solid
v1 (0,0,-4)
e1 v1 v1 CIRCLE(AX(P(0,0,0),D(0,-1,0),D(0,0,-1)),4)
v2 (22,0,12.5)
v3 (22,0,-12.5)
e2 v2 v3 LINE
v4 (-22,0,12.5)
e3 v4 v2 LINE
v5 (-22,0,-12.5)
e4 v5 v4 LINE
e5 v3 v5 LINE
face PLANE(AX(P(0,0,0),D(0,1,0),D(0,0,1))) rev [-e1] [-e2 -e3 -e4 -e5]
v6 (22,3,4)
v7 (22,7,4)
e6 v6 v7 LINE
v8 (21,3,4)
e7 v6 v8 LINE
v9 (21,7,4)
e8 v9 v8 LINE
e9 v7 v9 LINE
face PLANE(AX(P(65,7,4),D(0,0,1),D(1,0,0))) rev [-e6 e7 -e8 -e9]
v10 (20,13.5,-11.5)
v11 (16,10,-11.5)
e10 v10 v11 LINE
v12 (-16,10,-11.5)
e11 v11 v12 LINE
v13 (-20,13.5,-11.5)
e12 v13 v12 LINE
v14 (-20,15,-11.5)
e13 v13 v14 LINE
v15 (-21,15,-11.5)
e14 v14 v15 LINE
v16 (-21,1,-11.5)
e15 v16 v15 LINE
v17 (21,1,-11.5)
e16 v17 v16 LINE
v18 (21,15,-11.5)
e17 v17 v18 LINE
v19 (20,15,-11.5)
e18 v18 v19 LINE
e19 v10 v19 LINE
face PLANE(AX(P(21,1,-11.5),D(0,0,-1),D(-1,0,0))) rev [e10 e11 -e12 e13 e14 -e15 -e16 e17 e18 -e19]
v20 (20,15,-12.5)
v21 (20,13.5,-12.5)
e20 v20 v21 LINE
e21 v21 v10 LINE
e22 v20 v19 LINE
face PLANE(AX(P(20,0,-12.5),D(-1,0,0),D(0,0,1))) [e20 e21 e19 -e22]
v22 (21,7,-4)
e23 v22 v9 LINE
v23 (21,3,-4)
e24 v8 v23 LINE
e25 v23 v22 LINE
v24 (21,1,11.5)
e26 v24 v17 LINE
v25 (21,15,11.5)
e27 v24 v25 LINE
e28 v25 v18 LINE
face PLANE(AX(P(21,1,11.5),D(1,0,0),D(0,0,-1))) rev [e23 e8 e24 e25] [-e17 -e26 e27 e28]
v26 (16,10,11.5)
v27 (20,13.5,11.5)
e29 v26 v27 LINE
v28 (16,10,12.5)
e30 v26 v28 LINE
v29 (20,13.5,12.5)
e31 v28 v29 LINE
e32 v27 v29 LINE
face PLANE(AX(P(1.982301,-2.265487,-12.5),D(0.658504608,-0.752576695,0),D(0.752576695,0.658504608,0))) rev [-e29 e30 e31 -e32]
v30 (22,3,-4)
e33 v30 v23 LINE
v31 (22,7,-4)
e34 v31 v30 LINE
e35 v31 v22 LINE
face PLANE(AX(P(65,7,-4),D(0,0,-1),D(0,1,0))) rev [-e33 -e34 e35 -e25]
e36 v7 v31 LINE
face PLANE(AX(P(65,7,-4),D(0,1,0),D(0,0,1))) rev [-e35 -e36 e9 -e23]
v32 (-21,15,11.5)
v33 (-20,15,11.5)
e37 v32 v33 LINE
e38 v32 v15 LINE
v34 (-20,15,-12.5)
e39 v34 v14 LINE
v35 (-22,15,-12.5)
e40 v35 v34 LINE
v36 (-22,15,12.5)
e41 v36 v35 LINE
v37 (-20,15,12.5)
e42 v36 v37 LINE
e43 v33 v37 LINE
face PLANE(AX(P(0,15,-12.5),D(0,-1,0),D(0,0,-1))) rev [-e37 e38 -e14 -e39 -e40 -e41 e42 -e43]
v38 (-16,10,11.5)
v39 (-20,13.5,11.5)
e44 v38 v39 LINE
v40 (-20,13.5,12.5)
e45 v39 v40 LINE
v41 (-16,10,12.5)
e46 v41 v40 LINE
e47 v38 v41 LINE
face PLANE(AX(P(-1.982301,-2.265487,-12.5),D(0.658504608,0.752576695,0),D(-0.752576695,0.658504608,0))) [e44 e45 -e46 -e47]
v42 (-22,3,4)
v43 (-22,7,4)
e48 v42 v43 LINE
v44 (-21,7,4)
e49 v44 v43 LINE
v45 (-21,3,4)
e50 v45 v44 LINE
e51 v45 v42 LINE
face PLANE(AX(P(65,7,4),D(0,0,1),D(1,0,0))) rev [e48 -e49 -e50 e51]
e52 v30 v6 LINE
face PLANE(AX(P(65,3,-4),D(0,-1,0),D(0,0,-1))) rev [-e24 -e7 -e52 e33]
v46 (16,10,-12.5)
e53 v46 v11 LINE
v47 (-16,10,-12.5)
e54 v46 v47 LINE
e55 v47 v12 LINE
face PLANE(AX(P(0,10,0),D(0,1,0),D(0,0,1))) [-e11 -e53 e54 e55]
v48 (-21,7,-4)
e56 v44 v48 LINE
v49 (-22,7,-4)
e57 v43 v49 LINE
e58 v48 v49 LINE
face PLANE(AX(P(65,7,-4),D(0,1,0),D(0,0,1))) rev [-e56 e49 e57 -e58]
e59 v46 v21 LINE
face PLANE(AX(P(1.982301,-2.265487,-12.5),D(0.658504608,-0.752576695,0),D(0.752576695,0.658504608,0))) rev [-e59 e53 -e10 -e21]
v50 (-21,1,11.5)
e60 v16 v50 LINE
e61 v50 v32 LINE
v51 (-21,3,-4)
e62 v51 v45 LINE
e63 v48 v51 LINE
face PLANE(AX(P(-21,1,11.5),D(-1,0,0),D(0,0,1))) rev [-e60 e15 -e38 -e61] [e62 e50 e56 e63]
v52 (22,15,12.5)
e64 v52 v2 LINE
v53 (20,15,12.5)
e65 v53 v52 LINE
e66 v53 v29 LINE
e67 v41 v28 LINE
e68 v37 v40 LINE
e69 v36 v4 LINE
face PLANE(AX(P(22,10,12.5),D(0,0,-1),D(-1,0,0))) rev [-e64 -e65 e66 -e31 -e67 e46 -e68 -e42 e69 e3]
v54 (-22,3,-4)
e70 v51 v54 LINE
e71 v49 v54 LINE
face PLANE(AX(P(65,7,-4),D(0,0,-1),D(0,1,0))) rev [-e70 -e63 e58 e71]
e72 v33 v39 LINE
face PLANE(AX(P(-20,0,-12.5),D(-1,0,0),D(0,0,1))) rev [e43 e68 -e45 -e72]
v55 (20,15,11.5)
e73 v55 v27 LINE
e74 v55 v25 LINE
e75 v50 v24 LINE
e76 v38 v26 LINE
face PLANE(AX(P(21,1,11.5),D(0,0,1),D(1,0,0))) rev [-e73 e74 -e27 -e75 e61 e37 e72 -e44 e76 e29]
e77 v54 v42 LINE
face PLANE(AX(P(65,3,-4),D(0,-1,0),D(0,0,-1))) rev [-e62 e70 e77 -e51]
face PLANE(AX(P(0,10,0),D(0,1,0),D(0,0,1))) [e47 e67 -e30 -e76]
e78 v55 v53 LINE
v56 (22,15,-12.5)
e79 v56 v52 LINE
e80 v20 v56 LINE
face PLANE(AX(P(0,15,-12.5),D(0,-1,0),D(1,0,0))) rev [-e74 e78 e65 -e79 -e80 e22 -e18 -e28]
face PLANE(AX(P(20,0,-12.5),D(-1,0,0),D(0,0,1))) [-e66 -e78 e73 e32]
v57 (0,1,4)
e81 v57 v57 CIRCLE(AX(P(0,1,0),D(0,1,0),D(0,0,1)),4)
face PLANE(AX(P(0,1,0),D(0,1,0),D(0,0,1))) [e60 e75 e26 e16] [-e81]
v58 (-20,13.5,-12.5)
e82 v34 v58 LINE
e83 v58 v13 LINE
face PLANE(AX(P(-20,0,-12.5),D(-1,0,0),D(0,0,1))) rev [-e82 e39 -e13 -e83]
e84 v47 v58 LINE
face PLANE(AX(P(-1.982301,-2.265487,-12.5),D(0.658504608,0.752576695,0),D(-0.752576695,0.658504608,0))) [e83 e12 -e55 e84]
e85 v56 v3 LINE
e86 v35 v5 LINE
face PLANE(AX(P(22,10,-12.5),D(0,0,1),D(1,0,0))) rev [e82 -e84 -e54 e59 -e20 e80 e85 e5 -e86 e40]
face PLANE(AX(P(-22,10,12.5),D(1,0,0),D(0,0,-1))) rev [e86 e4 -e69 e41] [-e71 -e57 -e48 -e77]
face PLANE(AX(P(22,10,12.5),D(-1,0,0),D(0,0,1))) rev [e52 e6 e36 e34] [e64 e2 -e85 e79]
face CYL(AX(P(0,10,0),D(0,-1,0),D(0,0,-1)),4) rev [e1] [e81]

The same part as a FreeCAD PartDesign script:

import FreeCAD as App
import Part
import Sketcher
Q = App.Units.Quantity

doc = App.newDocument("Part")
params = doc.addObject("Spreadsheet::Sheet", "Params")
for row, (alias, value) in enumerate([
    ("sketch1_width", "44 mm"),
    ("sketch1_height", "25 mm"),
    ("pad1_length", "10 mm"),
    ("sketch2_width", "42 mm"),
    ("sketch2_height", "23 mm"),
    ("pocket1_length", "9 mm"),
    ("sketch3_width", "6 mm"),
    ("sketch3_width2", "3 mm"),
    ("sketch3_width3", "1 mm"),
    ("sketch3_height", "7 mm"),
    ("sketch3_height2", "2 mm"),
    ("pad2_length", "25 mm"),
    ("sketch4_width", "42 mm"),
    ("sketch4_height", "23 mm"),
    ("pocket2_length", "28 mm"),
    ("sketch5_width", "1 mm"),
    ("sketch5_height", "23 mm"),
    ("pocket3_length", "5 mm"),
    ("pocket4_length", "1 mm"),
    ("pocket5_length", "1 mm"),
    ("sketch8_width", "1 mm"),
    ("sketch8_height", "23 mm"),
    ("pad3_length", "5 mm"),
    ("sketch9_width", "4 mm"),
    ("sketch9_height", "8 mm"),
    ("pocket6_length", "87 mm"),
    ("sketch10_diameter", "8 mm"),
    ("pocket7_length", "10 mm"),
], start=1):
    params.set(f"A{row}", alias)
    params.set(f"B{row}", "=" + value)
    params.setAlias(f"B{row}", alias)

body = doc.addObject("PartDesign::Body", "Body")

# Sketch on XZ plane
sketch1 = body.newObject("Sketcher::SketchObject", "Sketch")
sketch1.AttachmentSupport = (doc.getObject("XZ_Plane"), [""])
sketch1.MapMode = "FlatFace"
sketch1.addGeometry([
    Part.LineSegment(App.Vector(-22, -12.5, 0), App.Vector(-22, 12.5, 0)),
    Part.LineSegment(App.Vector(-22, 12.5, 0), App.Vector(22, 12.5, 0)),
    Part.LineSegment(App.Vector(22, 12.5, 0), App.Vector(22, -12.5, 0)),
    Part.LineSegment(App.Vector(22, -12.5, 0), App.Vector(-22, -12.5, 0)),
], False)
sketch1.addConstraint([
    Sketcher.Constraint("Coincident", 0, 2, 1, 1),
    Sketcher.Constraint("Coincident", 1, 2, 2, 1),
    Sketcher.Constraint("Coincident", 2, 2, 3, 1),
    Sketcher.Constraint("Coincident", 3, 2, 0, 1),
    Sketcher.Constraint("Vertical", 0),
    Sketcher.Constraint("Horizontal", 1),
    Sketcher.Constraint("Vertical", 2),
    Sketcher.Constraint("Horizontal", 3),
    Sketcher.Constraint("Symmetric", 0, 2, 2, 2, -1, 1),
    Sketcher.Constraint("DistanceX", 1, 1, 1, 2, Q("44 mm")),
    Sketcher.Constraint("DistanceY", 0, 1, 0, 2, Q("25 mm")),
])
sketch1.setExpression("Constraints[9]", "Params.sketch1_width")
sketch1.setExpression("Constraints[10]", "Params.sketch1_height")
pad1 = body.newObject("PartDesign::Pad", "Pad")
pad1.Profile = sketch1
pad1.setExpression("Length", "Params.pad1_length")
pad1.Reversed = True

# Sketch on XZ plane
sketch2 = body.newObject("Sketcher::SketchObject", "Sketch001")
sketch2.AttachmentSupport = (doc.getObject("XZ_Plane"), [""])
sketch2.MapMode = "FlatFace"
sketch2.AttachmentOffset = App.Placement(App.Vector(0, 0, -10), App.Rotation())
sketch2.addGeometry([
    Part.LineSegment(App.Vector(-21, -11.5, 0), App.Vector(-21, 11.5, 0)),
    Part.LineSegment(App.Vector(-21, 11.5, 0), App.Vector(21, 11.5, 0)),
    Part.LineSegment(App.Vector(21, 11.5, 0), App.Vector(21, -11.5, 0)),
    Part.LineSegment(App.Vector(21, -11.5, 0), App.Vector(-21, -11.5, 0)),
], False)
sketch2.addConstraint([
    Sketcher.Constraint("Coincident", 0, 2, 1, 1),
    Sketcher.Constraint("Coincident", 1, 2, 2, 1),
    Sketcher.Constraint("Coincident", 2, 2, 3, 1),
    Sketcher.Constraint("Coincident", 3, 2, 0, 1),
    Sketcher.Constraint("Vertical", 0),
    Sketcher.Constraint("Horizontal", 1),
    Sketcher.Constraint("Vertical", 2),
    Sketcher.Constraint("Horizontal", 3),
    Sketcher.Constraint("Symmetric", 0, 2, 2, 2, -1, 1),
    Sketcher.Constraint("DistanceX", 1, 1, 1, 2, Q("42 mm")),
    Sketcher.Constraint("DistanceY", 0, 1, 0, 2, Q("23 mm")),
])
sketch2.setExpression("Constraints[9]", "Params.sketch2_width")
sketch2.setExpression("Constraints[10]", "Params.sketch2_height")
pocket1 = body.newObject("PartDesign::Pocket", "Pocket")
pocket1.Profile = sketch2
pocket1.setExpression("Length", "Params.pocket1_length")
pocket1.Reversed = True

# Sketch on XY plane
sketch3 = body.newObject("Sketcher::SketchObject", "Sketch002")
sketch3.AttachmentSupport = (doc.getObject("XY_Plane"), [""])
sketch3.MapMode = "FlatFace"
sketch3.AttachmentOffset = App.Placement(App.Vector(0, 0, 12.5), App.Rotation())
sketch3.addGeometry([
    Part.LineSegment(App.Vector(-22, 10, 0), App.Vector(-16, 10, 0)),  # 0
    Part.LineSegment(App.Vector(-16, 10, 0), App.Vector(-20, 13.5, 0)),  # 1
    Part.LineSegment(App.Vector(-20, 13.5, 0), App.Vector(-20, 15, 0)),  # 2
    Part.LineSegment(App.Vector(-20, 15, 0), App.Vector(-23, 15, 0)),  # 3
    Part.LineSegment(App.Vector(-23, 15, 0), App.Vector(-23, 8, 0)),  # 4
    Part.LineSegment(App.Vector(-23, 8, 0), App.Vector(-22, 8, 0)),  # 5
    Part.LineSegment(App.Vector(-22, 8, 0), App.Vector(-22, 10, 0)),  # 6
    Part.LineSegment(App.Vector(20, 13.5, 0), App.Vector(16, 10, 0)),  # 7
    Part.LineSegment(App.Vector(16, 10, 0), App.Vector(22, 10, 0)),  # 8
    Part.LineSegment(App.Vector(22, 10, 0), App.Vector(22, 8, 0)),  # 9
    Part.LineSegment(App.Vector(22, 8, 0), App.Vector(23, 8, 0)),  # 10
    Part.LineSegment(App.Vector(23, 8, 0), App.Vector(23, 15, 0)),  # 11
    Part.LineSegment(App.Vector(23, 15, 0), App.Vector(20, 15, 0)),  # 12
    Part.LineSegment(App.Vector(20, 15, 0), App.Vector(20, 13.5, 0)),  # 13
], False)
sketch3.addConstraint([
    Sketcher.Constraint("Coincident", 0, 2, 1, 1),
    Sketcher.Constraint("Coincident", 1, 2, 2, 1),
    Sketcher.Constraint("Coincident", 2, 2, 3, 1),
    Sketcher.Constraint("Coincident", 3, 2, 4, 1),
    Sketcher.Constraint("Coincident", 4, 2, 5, 1),
    Sketcher.Constraint("Coincident", 5, 2, 6, 1),
    Sketcher.Constraint("Coincident", 6, 2, 0, 1),
    Sketcher.Constraint("Coincident", 7, 2, 8, 1),
    Sketcher.Constraint("Coincident", 8, 2, 9, 1),
    Sketcher.Constraint("Coincident", 9, 2, 10, 1),
    Sketcher.Constraint("Coincident", 10, 2, 11, 1),
    Sketcher.Constraint("Coincident", 11, 2, 12, 1),
    Sketcher.Constraint("Coincident", 12, 2, 13, 1),
    Sketcher.Constraint("Coincident", 13, 2, 7, 1),
    Sketcher.Constraint("Horizontal", 0),
    Sketcher.Constraint("Vertical", 2),
    Sketcher.Constraint("Horizontal", 3),
    Sketcher.Constraint("Vertical", 4),
    Sketcher.Constraint("Horizontal", 5),
    Sketcher.Constraint("Vertical", 6),
    Sketcher.Constraint("Horizontal", 8),
    Sketcher.Constraint("Vertical", 9),
    Sketcher.Constraint("Horizontal", 10),
    Sketcher.Constraint("Vertical", 11),
    Sketcher.Constraint("Horizontal", 12),
    Sketcher.Constraint("Vertical", 13),
    Sketcher.Constraint("Symmetric", 0, 2, 7, 2, -2),
    Sketcher.Constraint("Symmetric", 5, 2, 9, 2, -2),
    Sketcher.Constraint("Symmetric", 3, 2, 11, 2, -2),
    Sketcher.Constraint("Symmetric", 1, 2, 13, 2, -2),
    Sketcher.Constraint("DistanceX", 0, 1, 0, 2, Q("6 mm")),
    Sketcher.Constraint("DistanceX", 3, 2, 3, 1, Q("3 mm")),
    Sketcher.Constraint("DistanceX", 5, 1, 5, 2, Q("1 mm")),
    Sketcher.Constraint("DistanceY", 4, 2, 4, 1, Q("7 mm")),
    Sketcher.Constraint("DistanceY", 6, 1, 6, 2, Q("2 mm")),
    Sketcher.Constraint("DistanceY", 2, 1, 2, 2, Q("1.5 mm")),
    Sketcher.Constraint("DistanceX", 0, 2, -1, 1, Q("16 mm")),
    Sketcher.Constraint("DistanceY", -1, 1, 0, 2, Q("10 mm")),
])
sketch3.setExpression("Constraints[30]", "Params.sketch3_width")
sketch3.setExpression("Constraints[31]", "Params.sketch3_width2")
sketch3.setExpression("Constraints[32]", "Params.sketch3_width3")
sketch3.setExpression("Constraints[33]", "Params.sketch3_height")
sketch3.setExpression("Constraints[34]", "Params.sketch3_height2")
pad2 = body.newObject("PartDesign::Pad", "Pad001")
pad2.Profile = sketch3
pad2.setExpression("Length", "Params.pad2_length")
pad2.Reversed = True

# Sketch on XZ plane
sketch4 = body.newObject("Sketcher::SketchObject", "Sketch003")
sketch4.AttachmentSupport = (doc.getObject("XZ_Plane"), [""])
sketch4.MapMode = "FlatFace"
sketch4.AttachmentOffset = App.Placement(App.Vector(0, 0, -1), App.Rotation())
sketch4.addGeometry([
    Part.LineSegment(App.Vector(-21, -11.5, 0), App.Vector(-21, 11.5, 0)),
    Part.LineSegment(App.Vector(-21, 11.5, 0), App.Vector(21, 11.5, 0)),
    Part.LineSegment(App.Vector(21, 11.5, 0), App.Vector(21, -11.5, 0)),
    Part.LineSegment(App.Vector(21, -11.5, 0), App.Vector(-21, -11.5, 0)),
], False)
sketch4.addConstraint([
    Sketcher.Constraint("Coincident", 0, 2, 1, 1),
    Sketcher.Constraint("Coincident", 1, 2, 2, 1),
    Sketcher.Constraint("Coincident", 2, 2, 3, 1),
    Sketcher.Constraint("Coincident", 3, 2, 0, 1),
    Sketcher.Constraint("Vertical", 0),
    Sketcher.Constraint("Horizontal", 1),
    Sketcher.Constraint("Vertical", 2),
    Sketcher.Constraint("Horizontal", 3),
    Sketcher.Constraint("Symmetric", 0, 2, 2, 2, -1, 1),
    Sketcher.Constraint("DistanceX", 1, 1, 1, 2, Q("42 mm")),
    Sketcher.Constraint("DistanceY", 0, 1, 0, 2, Q("23 mm")),
])
sketch4.setExpression("Constraints[9]", "Params.sketch4_width")
sketch4.setExpression("Constraints[10]", "Params.sketch4_height")
pocket2 = body.newObject("PartDesign::Pocket", "Pocket001")
pocket2.Profile = sketch4
pocket2.setExpression("Length", "Params.pocket2_length")

# Sketch on XZ plane
sketch5 = body.newObject("Sketcher::SketchObject", "Sketch004")
sketch5.AttachmentSupport = (doc.getObject("XZ_Plane"), [""])
sketch5.MapMode = "FlatFace"
sketch5.AttachmentOffset = App.Placement(App.Vector(0, 0, -15), App.Rotation())
sketch5.addGeometry([
    Part.LineSegment(App.Vector(-22, -11.5, 0), App.Vector(-22, 11.5, 0)),  # 0
    Part.LineSegment(App.Vector(-22, 11.5, 0), App.Vector(-21, 11.5, 0)),  # 1
    Part.LineSegment(App.Vector(-21, 11.5, 0), App.Vector(-21, -11.5, 0)),  # 2
    Part.LineSegment(App.Vector(-21, -11.5, 0), App.Vector(-22, -11.5, 0)),  # 3
    Part.LineSegment(App.Vector(21, -11.5, 0), App.Vector(21, 11.5, 0)),  # 4
    Part.LineSegment(App.Vector(21, 11.5, 0), App.Vector(22, 11.5, 0)),  # 5
    Part.LineSegment(App.Vector(22, 11.5, 0), App.Vector(22, -11.5, 0)),  # 6
    Part.LineSegment(App.Vector(22, -11.5, 0), App.Vector(21, -11.5, 0)),  # 7
], False)
sketch5.addConstraint([
    Sketcher.Constraint("Coincident", 0, 2, 1, 1),
    Sketcher.Constraint("Coincident", 1, 2, 2, 1),
    Sketcher.Constraint("Coincident", 2, 2, 3, 1),
    Sketcher.Constraint("Coincident", 3, 2, 0, 1),
    Sketcher.Constraint("Coincident", 4, 2, 5, 1),
    Sketcher.Constraint("Coincident", 5, 2, 6, 1),
    Sketcher.Constraint("Coincident", 6, 2, 7, 1),
    Sketcher.Constraint("Coincident", 7, 2, 4, 1),
    Sketcher.Constraint("Vertical", 0),
    Sketcher.Constraint("Horizontal", 1),
    Sketcher.Constraint("Vertical", 2),
    Sketcher.Constraint("Horizontal", 3),
    Sketcher.Constraint("Vertical", 4),
    Sketcher.Constraint("Horizontal", 5),
    Sketcher.Constraint("Vertical", 6),
    Sketcher.Constraint("Horizontal", 7),
    Sketcher.Constraint("Symmetric", 2, 2, 4, 2, -1, 1),
    Sketcher.Constraint("Symmetric", 0, 2, 6, 2, -1, 1),
    Sketcher.Constraint("Horizontal", 1, 2, 4, 2),
    Sketcher.Constraint("DistanceX", 1, 1, 1, 2, Q("1 mm")),
    Sketcher.Constraint("DistanceY", 0, 1, 0, 2, Q("23 mm")),
    Sketcher.Constraint("DistanceX", 0, 2, -1, 1, Q("22 mm")),
])
sketch5.setExpression("Constraints[19]", "Params.sketch5_width")
sketch5.setExpression("Constraints[20]", "Params.sketch5_height")
pocket3 = body.newObject("PartDesign::Pocket", "Pocket002")
pocket3.Profile = sketch5
pocket3.setExpression("Length", "Params.pocket3_length")
pocket3.Reversed = True

# Sketch on YZ plane
sketch6 = body.newObject("Sketcher::SketchObject", "Sketch005")
sketch6.AttachmentSupport = (doc.getObject("YZ_Plane"), [""])
sketch6.MapMode = "FlatFace"
sketch6.AttachmentOffset = App.Placement(App.Vector(0, 0, 23), App.Rotation())
sketch6.addGeometry([
    Part.LineSegment(App.Vector(16.837697, 15.471415, 0), App.Vector(5.390355, 15.471415, 0)),
    Part.LineSegment(App.Vector(5.390355, 15.471415, 0), App.Vector(5.390355, -14.422017, 0)),
    Part.LineSegment(App.Vector(5.390355, -14.422017, 0), App.Vector(16.837697, -14.422017, 0)),
    Part.LineSegment(App.Vector(16.837697, -14.422017, 0), App.Vector(16.837697, 15.471415, 0)),
], False)
sketch6.addConstraint([
    Sketcher.Constraint("Coincident", 0, 2, 1, 1),
    Sketcher.Constraint("Coincident", 1, 2, 2, 1),
    Sketcher.Constraint("Coincident", 2, 2, 3, 1),
    Sketcher.Constraint("Coincident", 3, 2, 0, 1),
    Sketcher.Constraint("Horizontal", 0),
    Sketcher.Constraint("Vertical", 1),
    Sketcher.Constraint("Horizontal", 2),
    Sketcher.Constraint("Vertical", 3),
    Sketcher.Constraint("DistanceX", 0, 2, 0, 1, Q("11.447343 mm")),
    Sketcher.Constraint("DistanceY", 1, 2, 1, 1, Q("29.893432 mm")),
    Sketcher.Constraint("DistanceX", -1, 1, 0, 2, Q("5.390355 mm")),
    Sketcher.Constraint("DistanceY", -1, 1, 0, 2, Q("15.471415 mm")),
])
pocket4 = body.newObject("PartDesign::Pocket", "Pocket003")
pocket4.Profile = sketch6
pocket4.setExpression("Length", "Params.pocket4_length")

# Sketch on YZ plane
sketch7 = body.newObject("Sketcher::SketchObject", "Sketch006")
sketch7.AttachmentSupport = (doc.getObject("YZ_Plane"), [""])
sketch7.MapMode = "FlatFace"
sketch7.AttachmentOffset = App.Placement(App.Vector(0, 0, -23), App.Rotation())
sketch7.addGeometry([
    Part.LineSegment(App.Vector(17.189837, -16.231638, 0), App.Vector(7.32109, -16.231638, 0)),
    Part.LineSegment(App.Vector(7.32109, -16.231638, 0), App.Vector(7.32109, 14.772199, 0)),
    Part.LineSegment(App.Vector(7.32109, 14.772199, 0), App.Vector(17.189837, 14.772199, 0)),
    Part.LineSegment(App.Vector(17.189837, 14.772199, 0), App.Vector(17.189837, -16.231638, 0)),
], False)
sketch7.addConstraint([
    Sketcher.Constraint("Coincident", 0, 2, 1, 1),
    Sketcher.Constraint("Coincident", 1, 2, 2, 1),
    Sketcher.Constraint("Coincident", 2, 2, 3, 1),
    Sketcher.Constraint("Coincident", 3, 2, 0, 1),
    Sketcher.Constraint("Horizontal", 0),
    Sketcher.Constraint("Vertical", 1),
    Sketcher.Constraint("Horizontal", 2),
    Sketcher.Constraint("Vertical", 3),
    Sketcher.Constraint("DistanceY", -1, 1, 1, 2, Q("14.772199 mm")),
    Sketcher.Constraint("DistanceX", 0, 2, 0, 1, Q("9.868747 mm")),
    Sketcher.Constraint("DistanceY", 1, 1, 1, 2, Q("31.003837 mm")),
    Sketcher.Constraint("DistanceX", -1, 1, 0, 2, Q("7.32109 mm")),
])
pocket5 = body.newObject("PartDesign::Pocket", "Pocket004")
pocket5.Profile = sketch7
pocket5.setExpression("Length", "Params.pocket5_length")
pocket5.Reversed = True

# Sketch on XZ plane
sketch8 = body.newObject("Sketcher::SketchObject", "Sketch007")
sketch8.AttachmentSupport = (doc.getObject("XZ_Plane"), [""])
sketch8.MapMode = "FlatFace"
sketch8.AttachmentOffset = App.Placement(App.Vector(0, 0, -10), App.Rotation())
sketch8.addGeometry([
    Part.LineSegment(App.Vector(-22, -11.5, 0), App.Vector(-22, 11.5, 0)),  # 0
    Part.LineSegment(App.Vector(-22, 11.5, 0), App.Vector(-21, 11.5, 0)),  # 1
    Part.LineSegment(App.Vector(-21, 11.5, 0), App.Vector(-21, -11.5, 0)),  # 2
    Part.LineSegment(App.Vector(-21, -11.5, 0), App.Vector(-22, -11.5, 0)),  # 3
    Part.LineSegment(App.Vector(21, -11.5, 0), App.Vector(21, 11.5, 0)),  # 4
    Part.LineSegment(App.Vector(21, 11.5, 0), App.Vector(22, 11.5, 0)),  # 5
    Part.LineSegment(App.Vector(22, 11.5, 0), App.Vector(22, -11.5, 0)),  # 6
    Part.LineSegment(App.Vector(22, -11.5, 0), App.Vector(21, -11.5, 0)),  # 7
], False)
sketch8.addConstraint([
    Sketcher.Constraint("Coincident", 0, 2, 1, 1),
    Sketcher.Constraint("Coincident", 1, 2, 2, 1),
    Sketcher.Constraint("Coincident", 2, 2, 3, 1),
    Sketcher.Constraint("Coincident", 3, 2, 0, 1),
    Sketcher.Constraint("Coincident", 4, 2, 5, 1),
    Sketcher.Constraint("Coincident", 5, 2, 6, 1),
    Sketcher.Constraint("Coincident", 6, 2, 7, 1),
    Sketcher.Constraint("Coincident", 7, 2, 4, 1),
    Sketcher.Constraint("Vertical", 0),
    Sketcher.Constraint("Horizontal", 1),
    Sketcher.Constraint("Vertical", 2),
    Sketcher.Constraint("Horizontal", 3),
    Sketcher.Constraint("Vertical", 4),
    Sketcher.Constraint("Horizontal", 5),
    Sketcher.Constraint("Vertical", 6),
    Sketcher.Constraint("Horizontal", 7),
    Sketcher.Constraint("Symmetric", 2, 2, 4, 2, -1, 1),
    Sketcher.Constraint("Symmetric", 0, 2, 6, 2, -1, 1),
    Sketcher.Constraint("Horizontal", 1, 2, 4, 2),
    Sketcher.Constraint("DistanceX", 1, 1, 1, 2, Q("1 mm")),
    Sketcher.Constraint("DistanceY", 0, 1, 0, 2, Q("23 mm")),
    Sketcher.Constraint("DistanceX", 0, 2, -1, 1, Q("22 mm")),
])
sketch8.setExpression("Constraints[19]", "Params.sketch8_width")
sketch8.setExpression("Constraints[20]", "Params.sketch8_height")
pad3 = body.newObject("PartDesign::Pad", "Pad002")
pad3.Profile = sketch8
pad3.setExpression("Length", "Params.pad3_length")
pad3.Reversed = True

# Sketch on YZ plane
sketch9 = body.newObject("Sketcher::SketchObject", "Sketch008")
sketch9.AttachmentSupport = (doc.getObject("YZ_Plane"), [""])
sketch9.MapMode = "FlatFace"
sketch9.AttachmentOffset = App.Placement(App.Vector(0, 0, -22), App.Rotation())
sketch9.addGeometry([
    Part.LineSegment(App.Vector(7, -4, 0), App.Vector(3, -4, 0)),
    Part.LineSegment(App.Vector(3, -4, 0), App.Vector(3, 4, 0)),
    Part.LineSegment(App.Vector(3, 4, 0), App.Vector(7, 4, 0)),
    Part.LineSegment(App.Vector(7, 4, 0), App.Vector(7, -4, 0)),
], False)
sketch9.addConstraint([
    Sketcher.Constraint("Coincident", 0, 2, 1, 1),
    Sketcher.Constraint("Coincident", 1, 2, 2, 1),
    Sketcher.Constraint("Coincident", 2, 2, 3, 1),
    Sketcher.Constraint("Coincident", 3, 2, 0, 1),
    Sketcher.Constraint("Horizontal", 0),
    Sketcher.Constraint("Vertical", 1),
    Sketcher.Constraint("Horizontal", 2),
    Sketcher.Constraint("Vertical", 3),
    Sketcher.Constraint("DistanceX", 0, 2, 0, 1, Q("4 mm")),
    Sketcher.Constraint("DistanceY", 1, 1, 1, 2, Q("8 mm")),
    Sketcher.Constraint("DistanceX", -1, 1, 0, 2, Q("3 mm")),
    Sketcher.Constraint("DistanceY", 0, 2, -1, 1, Q("4 mm")),
])
sketch9.setExpression("Constraints[8]", "Params.sketch9_width")
sketch9.setExpression("Constraints[9]", "Params.sketch9_height")
pocket6 = body.newObject("PartDesign::Pocket", "Pocket005")
pocket6.Profile = sketch9
pocket6.setExpression("Length", "Params.pocket6_length")
pocket6.Reversed = True

# Sketch on XZ plane
sketch10 = body.newObject("Sketcher::SketchObject", "Sketch009")
sketch10.AttachmentSupport = (doc.getObject("XZ_Plane"), [""])
sketch10.MapMode = "FlatFace"
sketch10.addGeometry(Part.Circle(App.Vector(0, 0, 0), App.Vector(0, 0, 1), 4), False)
sketch10.addConstraint([
    Sketcher.Constraint("Coincident", 0, 3, -1, 1),
    Sketcher.Constraint("Diameter", 0, Q("8 mm")),
])
sketch10.setExpression("Constraints[1]", "Params.sketch10_diameter")
pocket7 = body.newObject("PartDesign::Pocket", "Pocket006")
pocket7.Profile = sketch10
pocket7.setExpression("Length", "Params.pocket7_length")

doc.recompute()
